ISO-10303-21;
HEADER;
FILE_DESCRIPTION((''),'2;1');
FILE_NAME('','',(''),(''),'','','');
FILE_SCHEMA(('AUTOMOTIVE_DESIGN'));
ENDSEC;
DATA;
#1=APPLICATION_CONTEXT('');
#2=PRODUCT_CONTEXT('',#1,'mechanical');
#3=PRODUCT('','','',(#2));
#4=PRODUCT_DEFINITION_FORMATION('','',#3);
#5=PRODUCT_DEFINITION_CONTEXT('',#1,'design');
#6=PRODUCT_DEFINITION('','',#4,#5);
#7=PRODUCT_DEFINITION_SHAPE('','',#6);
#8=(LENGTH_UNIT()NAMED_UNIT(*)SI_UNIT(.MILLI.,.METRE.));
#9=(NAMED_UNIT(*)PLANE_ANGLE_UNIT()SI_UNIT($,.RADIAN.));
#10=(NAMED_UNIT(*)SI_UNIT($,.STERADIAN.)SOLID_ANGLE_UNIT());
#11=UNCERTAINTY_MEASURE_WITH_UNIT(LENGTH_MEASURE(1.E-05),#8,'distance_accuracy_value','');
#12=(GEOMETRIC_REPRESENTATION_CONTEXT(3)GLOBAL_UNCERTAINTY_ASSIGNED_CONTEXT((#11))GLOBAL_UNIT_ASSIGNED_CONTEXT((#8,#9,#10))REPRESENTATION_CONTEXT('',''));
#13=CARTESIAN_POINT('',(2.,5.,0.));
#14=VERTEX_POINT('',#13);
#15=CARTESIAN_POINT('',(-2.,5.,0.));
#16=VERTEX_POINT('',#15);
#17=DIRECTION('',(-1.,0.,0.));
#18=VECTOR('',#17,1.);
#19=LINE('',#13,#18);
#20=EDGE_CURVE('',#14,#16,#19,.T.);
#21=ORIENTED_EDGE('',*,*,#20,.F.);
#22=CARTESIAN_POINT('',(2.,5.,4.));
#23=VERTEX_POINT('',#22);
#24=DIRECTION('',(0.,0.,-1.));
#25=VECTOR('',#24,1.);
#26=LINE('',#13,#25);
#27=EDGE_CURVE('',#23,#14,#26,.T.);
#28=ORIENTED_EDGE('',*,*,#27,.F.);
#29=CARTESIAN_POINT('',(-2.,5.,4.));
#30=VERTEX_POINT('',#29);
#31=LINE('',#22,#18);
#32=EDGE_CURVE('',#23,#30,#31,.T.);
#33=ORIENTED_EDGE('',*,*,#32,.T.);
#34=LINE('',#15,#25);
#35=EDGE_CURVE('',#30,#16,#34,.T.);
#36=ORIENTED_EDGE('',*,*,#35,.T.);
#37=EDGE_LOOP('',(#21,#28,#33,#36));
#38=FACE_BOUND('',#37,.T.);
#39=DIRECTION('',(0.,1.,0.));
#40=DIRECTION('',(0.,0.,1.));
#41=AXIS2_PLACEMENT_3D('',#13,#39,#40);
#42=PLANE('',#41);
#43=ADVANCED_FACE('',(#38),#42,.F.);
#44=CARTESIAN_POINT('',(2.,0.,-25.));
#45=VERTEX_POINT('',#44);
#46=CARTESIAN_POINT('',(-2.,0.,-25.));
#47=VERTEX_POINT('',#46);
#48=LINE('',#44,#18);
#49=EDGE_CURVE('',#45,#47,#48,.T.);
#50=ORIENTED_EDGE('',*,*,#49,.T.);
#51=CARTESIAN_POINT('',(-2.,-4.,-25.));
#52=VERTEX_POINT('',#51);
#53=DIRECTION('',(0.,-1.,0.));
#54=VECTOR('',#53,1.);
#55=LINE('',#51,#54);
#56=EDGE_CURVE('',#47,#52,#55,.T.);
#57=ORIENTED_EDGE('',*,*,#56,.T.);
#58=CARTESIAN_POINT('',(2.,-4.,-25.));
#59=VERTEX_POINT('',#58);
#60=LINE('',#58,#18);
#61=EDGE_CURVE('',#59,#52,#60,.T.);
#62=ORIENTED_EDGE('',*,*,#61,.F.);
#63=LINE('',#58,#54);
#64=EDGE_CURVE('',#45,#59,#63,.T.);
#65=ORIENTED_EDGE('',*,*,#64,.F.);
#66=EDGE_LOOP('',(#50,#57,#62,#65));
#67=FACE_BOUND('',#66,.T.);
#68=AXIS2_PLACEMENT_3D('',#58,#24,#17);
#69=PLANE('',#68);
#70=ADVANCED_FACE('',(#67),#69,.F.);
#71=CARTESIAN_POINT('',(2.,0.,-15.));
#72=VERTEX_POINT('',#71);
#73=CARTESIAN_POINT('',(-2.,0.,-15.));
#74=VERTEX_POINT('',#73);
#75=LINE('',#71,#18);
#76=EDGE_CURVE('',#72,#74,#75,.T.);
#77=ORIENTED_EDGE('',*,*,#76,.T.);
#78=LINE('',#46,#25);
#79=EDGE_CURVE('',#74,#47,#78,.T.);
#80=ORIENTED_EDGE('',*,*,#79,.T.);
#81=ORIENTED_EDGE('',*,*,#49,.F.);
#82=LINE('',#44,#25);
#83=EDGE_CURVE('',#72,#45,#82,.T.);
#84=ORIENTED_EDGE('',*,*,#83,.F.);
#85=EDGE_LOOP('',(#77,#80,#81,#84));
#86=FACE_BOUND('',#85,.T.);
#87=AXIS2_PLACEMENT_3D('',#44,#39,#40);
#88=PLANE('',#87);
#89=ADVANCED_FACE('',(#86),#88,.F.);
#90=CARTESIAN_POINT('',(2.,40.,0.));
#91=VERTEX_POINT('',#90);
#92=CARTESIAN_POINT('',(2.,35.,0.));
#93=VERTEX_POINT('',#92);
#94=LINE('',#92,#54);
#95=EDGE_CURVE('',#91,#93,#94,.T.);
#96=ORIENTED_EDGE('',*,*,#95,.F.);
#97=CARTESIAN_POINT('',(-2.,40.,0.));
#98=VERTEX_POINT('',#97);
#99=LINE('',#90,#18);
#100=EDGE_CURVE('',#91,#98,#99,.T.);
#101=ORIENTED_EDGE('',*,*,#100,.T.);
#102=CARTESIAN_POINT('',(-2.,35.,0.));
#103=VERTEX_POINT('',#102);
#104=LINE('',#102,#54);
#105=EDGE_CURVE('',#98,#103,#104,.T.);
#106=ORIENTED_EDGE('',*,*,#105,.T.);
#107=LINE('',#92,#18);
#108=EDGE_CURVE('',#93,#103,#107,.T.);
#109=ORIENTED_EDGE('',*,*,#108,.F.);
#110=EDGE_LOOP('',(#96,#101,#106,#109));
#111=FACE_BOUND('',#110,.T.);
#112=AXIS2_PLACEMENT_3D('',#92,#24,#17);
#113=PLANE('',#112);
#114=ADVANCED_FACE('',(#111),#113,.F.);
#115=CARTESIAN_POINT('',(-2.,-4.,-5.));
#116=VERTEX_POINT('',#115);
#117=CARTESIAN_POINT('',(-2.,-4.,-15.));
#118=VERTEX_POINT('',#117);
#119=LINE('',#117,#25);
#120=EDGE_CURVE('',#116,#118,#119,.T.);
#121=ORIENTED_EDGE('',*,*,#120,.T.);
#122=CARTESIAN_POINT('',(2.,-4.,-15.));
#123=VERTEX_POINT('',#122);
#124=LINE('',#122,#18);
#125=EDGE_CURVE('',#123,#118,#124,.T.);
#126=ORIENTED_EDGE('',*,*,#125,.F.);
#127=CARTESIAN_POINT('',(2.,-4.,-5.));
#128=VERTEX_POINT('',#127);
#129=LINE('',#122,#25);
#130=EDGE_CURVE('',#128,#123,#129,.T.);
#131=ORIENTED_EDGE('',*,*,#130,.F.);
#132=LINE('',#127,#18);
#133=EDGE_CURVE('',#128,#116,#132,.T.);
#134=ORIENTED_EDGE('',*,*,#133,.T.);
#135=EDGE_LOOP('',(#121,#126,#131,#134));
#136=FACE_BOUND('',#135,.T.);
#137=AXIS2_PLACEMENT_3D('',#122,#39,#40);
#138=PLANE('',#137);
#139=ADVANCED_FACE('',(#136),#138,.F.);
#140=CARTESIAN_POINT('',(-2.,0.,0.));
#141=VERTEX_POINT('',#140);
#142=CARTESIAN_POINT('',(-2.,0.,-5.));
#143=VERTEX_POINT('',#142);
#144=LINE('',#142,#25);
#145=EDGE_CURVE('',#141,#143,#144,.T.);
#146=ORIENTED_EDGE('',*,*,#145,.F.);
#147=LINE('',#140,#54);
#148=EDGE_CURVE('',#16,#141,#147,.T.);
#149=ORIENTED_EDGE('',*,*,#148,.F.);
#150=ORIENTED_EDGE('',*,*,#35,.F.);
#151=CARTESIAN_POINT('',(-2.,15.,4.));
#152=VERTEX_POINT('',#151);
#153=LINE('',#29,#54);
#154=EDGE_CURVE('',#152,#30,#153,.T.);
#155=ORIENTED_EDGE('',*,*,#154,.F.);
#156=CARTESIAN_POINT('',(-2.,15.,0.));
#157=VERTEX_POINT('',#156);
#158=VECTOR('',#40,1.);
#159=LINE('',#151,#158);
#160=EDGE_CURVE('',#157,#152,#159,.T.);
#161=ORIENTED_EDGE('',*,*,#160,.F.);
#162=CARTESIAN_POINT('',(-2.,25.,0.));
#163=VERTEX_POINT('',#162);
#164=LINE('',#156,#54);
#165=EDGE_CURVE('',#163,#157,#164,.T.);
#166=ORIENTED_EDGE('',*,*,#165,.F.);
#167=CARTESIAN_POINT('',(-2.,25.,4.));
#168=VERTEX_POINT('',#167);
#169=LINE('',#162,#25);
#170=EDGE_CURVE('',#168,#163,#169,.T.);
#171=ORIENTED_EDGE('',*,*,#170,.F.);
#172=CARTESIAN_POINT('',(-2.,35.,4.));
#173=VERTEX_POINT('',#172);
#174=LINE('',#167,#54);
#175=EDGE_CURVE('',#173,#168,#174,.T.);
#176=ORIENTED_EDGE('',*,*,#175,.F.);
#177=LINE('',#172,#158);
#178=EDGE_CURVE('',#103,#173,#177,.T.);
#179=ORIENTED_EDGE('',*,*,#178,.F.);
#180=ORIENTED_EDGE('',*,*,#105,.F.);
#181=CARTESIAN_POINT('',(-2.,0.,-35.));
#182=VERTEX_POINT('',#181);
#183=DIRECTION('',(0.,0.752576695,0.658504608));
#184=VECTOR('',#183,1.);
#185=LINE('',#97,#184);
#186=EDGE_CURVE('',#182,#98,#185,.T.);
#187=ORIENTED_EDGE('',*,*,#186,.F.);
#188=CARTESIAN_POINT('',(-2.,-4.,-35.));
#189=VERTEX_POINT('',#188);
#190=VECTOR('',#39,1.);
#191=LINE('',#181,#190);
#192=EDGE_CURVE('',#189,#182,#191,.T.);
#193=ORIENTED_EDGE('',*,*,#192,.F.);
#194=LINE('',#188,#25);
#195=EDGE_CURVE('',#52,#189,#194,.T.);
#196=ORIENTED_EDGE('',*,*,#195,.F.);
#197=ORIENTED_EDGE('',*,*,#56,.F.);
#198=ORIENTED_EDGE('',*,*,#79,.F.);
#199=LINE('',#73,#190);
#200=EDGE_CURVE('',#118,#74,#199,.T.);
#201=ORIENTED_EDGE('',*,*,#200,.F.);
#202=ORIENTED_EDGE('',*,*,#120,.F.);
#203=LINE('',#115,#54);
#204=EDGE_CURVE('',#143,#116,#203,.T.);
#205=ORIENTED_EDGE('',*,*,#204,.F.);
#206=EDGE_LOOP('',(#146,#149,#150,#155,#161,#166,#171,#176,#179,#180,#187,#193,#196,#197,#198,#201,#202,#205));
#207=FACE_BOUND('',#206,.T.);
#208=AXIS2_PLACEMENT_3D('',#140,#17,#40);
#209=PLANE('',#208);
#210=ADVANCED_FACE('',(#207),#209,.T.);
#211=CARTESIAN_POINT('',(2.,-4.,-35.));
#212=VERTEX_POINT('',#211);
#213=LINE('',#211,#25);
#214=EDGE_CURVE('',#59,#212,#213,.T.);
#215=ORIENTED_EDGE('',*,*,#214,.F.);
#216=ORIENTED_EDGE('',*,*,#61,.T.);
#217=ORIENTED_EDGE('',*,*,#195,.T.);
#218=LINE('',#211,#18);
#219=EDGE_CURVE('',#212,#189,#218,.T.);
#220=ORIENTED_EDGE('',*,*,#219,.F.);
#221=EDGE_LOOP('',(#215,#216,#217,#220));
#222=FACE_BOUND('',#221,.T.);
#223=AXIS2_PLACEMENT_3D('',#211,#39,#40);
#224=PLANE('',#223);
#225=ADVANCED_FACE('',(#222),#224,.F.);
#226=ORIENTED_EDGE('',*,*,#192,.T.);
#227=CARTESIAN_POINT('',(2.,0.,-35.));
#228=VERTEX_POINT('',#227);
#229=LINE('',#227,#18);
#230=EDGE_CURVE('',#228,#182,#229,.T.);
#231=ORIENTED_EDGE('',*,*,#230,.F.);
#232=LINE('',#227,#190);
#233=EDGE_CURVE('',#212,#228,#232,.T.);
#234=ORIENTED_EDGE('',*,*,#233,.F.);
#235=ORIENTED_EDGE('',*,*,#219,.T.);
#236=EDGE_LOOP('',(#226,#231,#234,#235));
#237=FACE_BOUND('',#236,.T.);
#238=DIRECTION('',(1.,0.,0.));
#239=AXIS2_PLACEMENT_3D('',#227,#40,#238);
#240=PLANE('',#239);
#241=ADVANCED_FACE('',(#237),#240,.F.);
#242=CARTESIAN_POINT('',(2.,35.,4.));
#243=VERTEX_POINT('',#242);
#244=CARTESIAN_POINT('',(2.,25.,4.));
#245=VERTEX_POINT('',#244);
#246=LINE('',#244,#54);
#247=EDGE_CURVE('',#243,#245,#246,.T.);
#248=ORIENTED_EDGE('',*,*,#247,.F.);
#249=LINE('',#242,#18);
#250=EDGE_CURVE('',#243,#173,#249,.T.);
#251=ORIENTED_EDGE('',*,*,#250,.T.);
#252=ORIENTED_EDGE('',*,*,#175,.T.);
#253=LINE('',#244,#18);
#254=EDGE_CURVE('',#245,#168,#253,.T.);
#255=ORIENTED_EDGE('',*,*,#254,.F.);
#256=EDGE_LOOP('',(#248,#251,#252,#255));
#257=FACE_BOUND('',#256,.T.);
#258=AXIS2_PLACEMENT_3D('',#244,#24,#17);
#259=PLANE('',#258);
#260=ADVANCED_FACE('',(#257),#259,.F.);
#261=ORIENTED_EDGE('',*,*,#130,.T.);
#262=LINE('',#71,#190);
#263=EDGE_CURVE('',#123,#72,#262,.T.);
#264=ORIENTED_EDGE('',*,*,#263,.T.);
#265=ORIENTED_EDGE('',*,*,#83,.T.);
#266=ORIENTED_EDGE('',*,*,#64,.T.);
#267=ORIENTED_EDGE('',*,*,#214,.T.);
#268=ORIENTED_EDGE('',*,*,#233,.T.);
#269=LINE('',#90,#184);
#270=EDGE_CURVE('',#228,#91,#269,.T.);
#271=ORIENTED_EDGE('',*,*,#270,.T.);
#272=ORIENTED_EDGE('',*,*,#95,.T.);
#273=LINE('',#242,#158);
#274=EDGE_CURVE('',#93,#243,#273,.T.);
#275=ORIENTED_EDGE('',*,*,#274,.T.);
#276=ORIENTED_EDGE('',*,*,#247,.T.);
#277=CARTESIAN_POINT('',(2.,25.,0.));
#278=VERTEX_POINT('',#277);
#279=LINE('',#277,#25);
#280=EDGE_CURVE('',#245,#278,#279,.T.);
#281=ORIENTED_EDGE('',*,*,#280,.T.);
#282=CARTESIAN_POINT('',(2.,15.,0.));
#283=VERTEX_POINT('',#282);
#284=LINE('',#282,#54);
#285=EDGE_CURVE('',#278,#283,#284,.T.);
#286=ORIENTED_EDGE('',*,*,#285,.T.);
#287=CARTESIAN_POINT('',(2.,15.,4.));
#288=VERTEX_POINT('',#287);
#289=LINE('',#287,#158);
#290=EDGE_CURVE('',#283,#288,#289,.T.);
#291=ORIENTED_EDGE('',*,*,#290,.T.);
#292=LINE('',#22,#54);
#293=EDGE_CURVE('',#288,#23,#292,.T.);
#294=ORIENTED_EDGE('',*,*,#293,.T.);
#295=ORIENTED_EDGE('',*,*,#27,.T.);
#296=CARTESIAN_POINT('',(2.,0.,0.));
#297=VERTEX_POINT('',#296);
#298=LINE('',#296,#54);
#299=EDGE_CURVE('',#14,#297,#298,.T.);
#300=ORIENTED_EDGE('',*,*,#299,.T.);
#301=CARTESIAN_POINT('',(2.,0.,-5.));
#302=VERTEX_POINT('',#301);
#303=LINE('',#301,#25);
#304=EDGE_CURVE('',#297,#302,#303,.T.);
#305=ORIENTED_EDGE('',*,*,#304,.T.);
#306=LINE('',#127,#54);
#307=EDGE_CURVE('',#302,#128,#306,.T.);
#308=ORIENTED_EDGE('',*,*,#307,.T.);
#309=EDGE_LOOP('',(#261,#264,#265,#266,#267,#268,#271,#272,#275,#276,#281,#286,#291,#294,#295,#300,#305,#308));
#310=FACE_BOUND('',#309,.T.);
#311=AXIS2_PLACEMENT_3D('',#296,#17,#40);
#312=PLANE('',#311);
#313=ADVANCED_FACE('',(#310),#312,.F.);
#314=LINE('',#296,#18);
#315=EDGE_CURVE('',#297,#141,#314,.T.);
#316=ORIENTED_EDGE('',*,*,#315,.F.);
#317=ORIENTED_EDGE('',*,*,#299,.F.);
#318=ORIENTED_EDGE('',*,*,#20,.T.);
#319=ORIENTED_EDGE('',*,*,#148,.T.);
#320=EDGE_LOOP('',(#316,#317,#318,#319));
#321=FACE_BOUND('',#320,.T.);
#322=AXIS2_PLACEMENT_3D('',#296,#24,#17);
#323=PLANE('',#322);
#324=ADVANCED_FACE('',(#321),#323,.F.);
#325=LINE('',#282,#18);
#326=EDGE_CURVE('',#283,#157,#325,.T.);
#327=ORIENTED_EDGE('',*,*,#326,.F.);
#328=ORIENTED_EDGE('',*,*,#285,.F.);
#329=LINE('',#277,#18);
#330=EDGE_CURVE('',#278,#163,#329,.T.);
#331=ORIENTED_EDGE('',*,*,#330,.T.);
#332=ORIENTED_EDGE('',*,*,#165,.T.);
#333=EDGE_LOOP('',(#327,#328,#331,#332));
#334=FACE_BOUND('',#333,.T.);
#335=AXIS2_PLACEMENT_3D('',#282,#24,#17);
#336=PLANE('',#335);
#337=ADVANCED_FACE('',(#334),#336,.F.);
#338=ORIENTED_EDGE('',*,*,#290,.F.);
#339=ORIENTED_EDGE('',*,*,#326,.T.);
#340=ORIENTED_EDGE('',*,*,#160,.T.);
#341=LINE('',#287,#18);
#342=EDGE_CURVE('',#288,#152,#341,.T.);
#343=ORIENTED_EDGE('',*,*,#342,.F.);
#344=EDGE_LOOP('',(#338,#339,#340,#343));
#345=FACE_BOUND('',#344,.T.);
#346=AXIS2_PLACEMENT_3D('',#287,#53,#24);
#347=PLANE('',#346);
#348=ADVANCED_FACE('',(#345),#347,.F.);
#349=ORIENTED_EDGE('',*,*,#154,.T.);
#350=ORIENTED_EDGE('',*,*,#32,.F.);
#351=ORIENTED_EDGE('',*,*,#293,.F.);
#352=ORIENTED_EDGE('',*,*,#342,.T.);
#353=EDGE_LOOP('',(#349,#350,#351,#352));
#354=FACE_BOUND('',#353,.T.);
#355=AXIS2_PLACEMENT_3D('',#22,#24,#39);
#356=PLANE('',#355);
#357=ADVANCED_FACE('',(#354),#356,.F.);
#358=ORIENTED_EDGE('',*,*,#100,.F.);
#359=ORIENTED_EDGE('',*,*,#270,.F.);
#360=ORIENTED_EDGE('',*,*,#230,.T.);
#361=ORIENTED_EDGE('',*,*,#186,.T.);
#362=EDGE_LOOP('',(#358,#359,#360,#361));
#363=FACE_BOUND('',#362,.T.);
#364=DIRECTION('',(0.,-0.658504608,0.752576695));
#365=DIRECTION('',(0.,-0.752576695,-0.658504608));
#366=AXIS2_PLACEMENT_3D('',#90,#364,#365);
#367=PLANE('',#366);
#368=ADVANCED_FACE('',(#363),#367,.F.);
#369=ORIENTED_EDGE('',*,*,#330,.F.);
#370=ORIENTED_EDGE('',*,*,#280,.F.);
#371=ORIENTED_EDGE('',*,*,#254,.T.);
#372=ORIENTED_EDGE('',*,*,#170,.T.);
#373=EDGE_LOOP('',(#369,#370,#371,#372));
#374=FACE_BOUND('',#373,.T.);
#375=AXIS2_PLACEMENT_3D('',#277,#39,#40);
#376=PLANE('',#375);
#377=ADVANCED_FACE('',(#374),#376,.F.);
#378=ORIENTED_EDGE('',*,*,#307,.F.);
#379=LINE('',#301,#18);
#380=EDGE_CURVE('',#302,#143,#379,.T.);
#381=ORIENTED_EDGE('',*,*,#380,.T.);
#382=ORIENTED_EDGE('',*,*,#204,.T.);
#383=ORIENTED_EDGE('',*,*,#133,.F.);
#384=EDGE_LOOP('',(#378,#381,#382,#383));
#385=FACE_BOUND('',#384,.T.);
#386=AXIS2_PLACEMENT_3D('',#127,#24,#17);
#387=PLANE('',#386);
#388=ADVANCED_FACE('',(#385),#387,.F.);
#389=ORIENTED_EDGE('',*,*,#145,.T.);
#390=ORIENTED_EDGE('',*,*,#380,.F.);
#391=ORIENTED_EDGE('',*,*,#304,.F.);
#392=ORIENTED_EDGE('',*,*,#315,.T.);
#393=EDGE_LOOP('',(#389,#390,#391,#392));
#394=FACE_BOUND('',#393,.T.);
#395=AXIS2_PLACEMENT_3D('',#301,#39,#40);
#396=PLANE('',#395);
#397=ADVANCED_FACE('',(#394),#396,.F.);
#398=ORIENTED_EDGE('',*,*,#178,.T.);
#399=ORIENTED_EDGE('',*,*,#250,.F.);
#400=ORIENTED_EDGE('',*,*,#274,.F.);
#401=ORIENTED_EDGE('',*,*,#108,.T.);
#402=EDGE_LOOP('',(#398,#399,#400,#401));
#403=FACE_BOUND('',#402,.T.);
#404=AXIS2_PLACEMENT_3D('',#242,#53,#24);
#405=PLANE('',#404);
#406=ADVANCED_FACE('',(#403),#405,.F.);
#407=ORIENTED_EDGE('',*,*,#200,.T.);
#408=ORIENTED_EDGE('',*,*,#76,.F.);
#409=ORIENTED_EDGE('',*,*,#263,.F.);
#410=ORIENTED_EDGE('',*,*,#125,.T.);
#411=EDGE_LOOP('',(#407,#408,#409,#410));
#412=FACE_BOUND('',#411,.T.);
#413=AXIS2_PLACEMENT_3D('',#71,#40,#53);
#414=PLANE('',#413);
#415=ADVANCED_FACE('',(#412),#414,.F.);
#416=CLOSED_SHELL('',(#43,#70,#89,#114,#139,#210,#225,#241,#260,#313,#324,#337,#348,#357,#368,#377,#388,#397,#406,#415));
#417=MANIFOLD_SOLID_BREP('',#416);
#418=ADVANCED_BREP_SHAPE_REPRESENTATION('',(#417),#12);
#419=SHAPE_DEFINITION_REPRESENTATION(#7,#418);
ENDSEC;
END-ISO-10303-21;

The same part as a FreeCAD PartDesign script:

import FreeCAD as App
import Part
import Sketcher
from FreeCAD import Vector


def add_polygon(sketch, points):
    """Adds a closed chain of lines whose ends are joined by coincident constraints."""
    first, n = sketch.GeometryCount, len(points)
    for a, b in zip(points, points[1:] + points[:1]):
        sketch.addGeometry(Part.LineSegment(App.Vector(*a, 0), App.Vector(*b, 0)), False)
    for i in range(n):
        sketch.addConstraint(Sketcher.Constraint("Coincident", first + i, 2, first + (i + 1) % n, 1))

doc = App.newDocument("Part")
params = doc.addObject("Spreadsheet::Sheet", "Params")
for row, (alias, value) in enumerate([
    ("sketch1_width", "5 mm"),
    ("sketch1_width2", "4 mm"),
    ("sketch1_width3", "10 mm"),
    ("pad1_length", "4 mm"),
], start=1):
    params.set(f"A{row}", alias)
    params.set(f"B{row}", "=" + value)
    params.setAlias(f"B{row}", alias)

body = doc.addObject("PartDesign::Body", "Body")

sketch1 = doc.addObject("Sketcher::SketchObject", "Sketch")
body.addObject(sketch1)
sketch1.AttachmentSupport = (doc.YZ_Plane, [""])
sketch1.MapMode = "FlatFace"
add_polygon(sketch1, [(5, 0), (0, 0), (0, -5), (-4, -5), (-4, -15), (0, -15), (0, -25), (-4, -25), (-4, -35), (0, -35), (40, 0), (35, 0), (35, 4), (25, 4), (25, 0), (15, 0), (15, 4), (5, 4)])
sketch1.addConstraint(Sketcher.Constraint("Horizontal", 0))
sketch1.addConstraint(Sketcher.Constraint("Vertical", 1))
sketch1.addConstraint(Sketcher.Constraint("Horizontal", 2))
sketch1.addConstraint(Sketcher.Constraint("Vertical", 3))
sketch1.addConstraint(Sketcher.Constraint("Horizontal", 4))
sketch1.addConstraint(Sketcher.Constraint("Vertical", 5))
sketch1.addConstraint(Sketcher.Constraint("Horizontal", 6))
sketch1.addConstraint(Sketcher.Constraint("Vertical", 7))
sketch1.addConstraint(Sketcher.Constraint("Horizontal", 8))
sketch1.addConstraint(Sketcher.Constraint("Horizontal", 10))
sketch1.addConstraint(Sketcher.Constraint("Vertical", 11))
sketch1.addConstraint(Sketcher.Constraint("Horizontal", 12))
sketch1.addConstraint(Sketcher.Constraint("Vertical", 13))
sketch1.addConstraint(Sketcher.Constraint("Horizontal", 14))
sketch1.addConstraint(Sketcher.Constraint("Vertical", 15))
sketch1.addConstraint(Sketcher.Constraint("Horizontal", 16))
sketch1.addConstraint(Sketcher.Constraint("Vertical", 17))
sketch1.addConstraint(Sketcher.Constraint("Coincident", 0, 2, -1, 1))
sketch1.addConstraint(Sketcher.Constraint("PointOnObject", 4, 2, -2))
sketch1.addConstraint(Sketcher.Constraint("PointOnObject", 8, 2, -2))
sketch1.addConstraint(Sketcher.Constraint("PointOnObject", 9, 2, -1))
sketch1.addConstraint(Sketcher.Constraint("PointOnObject", 13, 2, -1))
sketch1.addConstraint(Sketcher.Constraint("Horizontal", 12, 2, 15, 2))
sketch1.addConstraint(Sketcher.Constraint("Vertical", 3, 2, 6, 2))
sketch1.addConstraint(Sketcher.Constraint("Equal", 0, 10))
sketch1.addConstraint(Sketcher.Constraint("Equal", 12, 14))
sketch1.addConstraint(Sketcher.Constraint("Equal", 14, 16))
sketch1.addConstraint(Sketcher.Constraint("Equal", 10, 1))
sketch1.addConstraint(Sketcher.Constraint("Equal", 16, 3))
sketch1.addConstraint(Sketcher.Constraint("Equal", 3, 5))
sketch1.addConstraint(Sketcher.Constraint("Equal", 5, 7))
sketch1.addConstraint(Sketcher.Constraint("Equal", 8, 11))
sketch1.addConstraint(Sketcher.Constraint("DistanceX", 0, 2, 0, 1, 5.0))
sketch1.addConstraint(Sketcher.Constraint("DistanceX", 2, 2, 2, 1, 4.0))
sketch1.addConstraint(Sketcher.Constraint("DistanceX", 12, 2, 12, 1, 10.0))
sketch1.setExpression("Constraints[50]", "Params.sketch1_width")
sketch1.setExpression("Constraints[51]", "Params.sketch1_width2")
sketch1.setExpression("Constraints[52]", "Params.sketch1_width3")
pad1 = doc.addObject("PartDesign::Pad", "Pad")
body.addObject(pad1)
pad1.Profile = sketch1
pad1.setExpression("Length", "Params.pad1_length")
pad1.Midplane = True

doc.recompute()
